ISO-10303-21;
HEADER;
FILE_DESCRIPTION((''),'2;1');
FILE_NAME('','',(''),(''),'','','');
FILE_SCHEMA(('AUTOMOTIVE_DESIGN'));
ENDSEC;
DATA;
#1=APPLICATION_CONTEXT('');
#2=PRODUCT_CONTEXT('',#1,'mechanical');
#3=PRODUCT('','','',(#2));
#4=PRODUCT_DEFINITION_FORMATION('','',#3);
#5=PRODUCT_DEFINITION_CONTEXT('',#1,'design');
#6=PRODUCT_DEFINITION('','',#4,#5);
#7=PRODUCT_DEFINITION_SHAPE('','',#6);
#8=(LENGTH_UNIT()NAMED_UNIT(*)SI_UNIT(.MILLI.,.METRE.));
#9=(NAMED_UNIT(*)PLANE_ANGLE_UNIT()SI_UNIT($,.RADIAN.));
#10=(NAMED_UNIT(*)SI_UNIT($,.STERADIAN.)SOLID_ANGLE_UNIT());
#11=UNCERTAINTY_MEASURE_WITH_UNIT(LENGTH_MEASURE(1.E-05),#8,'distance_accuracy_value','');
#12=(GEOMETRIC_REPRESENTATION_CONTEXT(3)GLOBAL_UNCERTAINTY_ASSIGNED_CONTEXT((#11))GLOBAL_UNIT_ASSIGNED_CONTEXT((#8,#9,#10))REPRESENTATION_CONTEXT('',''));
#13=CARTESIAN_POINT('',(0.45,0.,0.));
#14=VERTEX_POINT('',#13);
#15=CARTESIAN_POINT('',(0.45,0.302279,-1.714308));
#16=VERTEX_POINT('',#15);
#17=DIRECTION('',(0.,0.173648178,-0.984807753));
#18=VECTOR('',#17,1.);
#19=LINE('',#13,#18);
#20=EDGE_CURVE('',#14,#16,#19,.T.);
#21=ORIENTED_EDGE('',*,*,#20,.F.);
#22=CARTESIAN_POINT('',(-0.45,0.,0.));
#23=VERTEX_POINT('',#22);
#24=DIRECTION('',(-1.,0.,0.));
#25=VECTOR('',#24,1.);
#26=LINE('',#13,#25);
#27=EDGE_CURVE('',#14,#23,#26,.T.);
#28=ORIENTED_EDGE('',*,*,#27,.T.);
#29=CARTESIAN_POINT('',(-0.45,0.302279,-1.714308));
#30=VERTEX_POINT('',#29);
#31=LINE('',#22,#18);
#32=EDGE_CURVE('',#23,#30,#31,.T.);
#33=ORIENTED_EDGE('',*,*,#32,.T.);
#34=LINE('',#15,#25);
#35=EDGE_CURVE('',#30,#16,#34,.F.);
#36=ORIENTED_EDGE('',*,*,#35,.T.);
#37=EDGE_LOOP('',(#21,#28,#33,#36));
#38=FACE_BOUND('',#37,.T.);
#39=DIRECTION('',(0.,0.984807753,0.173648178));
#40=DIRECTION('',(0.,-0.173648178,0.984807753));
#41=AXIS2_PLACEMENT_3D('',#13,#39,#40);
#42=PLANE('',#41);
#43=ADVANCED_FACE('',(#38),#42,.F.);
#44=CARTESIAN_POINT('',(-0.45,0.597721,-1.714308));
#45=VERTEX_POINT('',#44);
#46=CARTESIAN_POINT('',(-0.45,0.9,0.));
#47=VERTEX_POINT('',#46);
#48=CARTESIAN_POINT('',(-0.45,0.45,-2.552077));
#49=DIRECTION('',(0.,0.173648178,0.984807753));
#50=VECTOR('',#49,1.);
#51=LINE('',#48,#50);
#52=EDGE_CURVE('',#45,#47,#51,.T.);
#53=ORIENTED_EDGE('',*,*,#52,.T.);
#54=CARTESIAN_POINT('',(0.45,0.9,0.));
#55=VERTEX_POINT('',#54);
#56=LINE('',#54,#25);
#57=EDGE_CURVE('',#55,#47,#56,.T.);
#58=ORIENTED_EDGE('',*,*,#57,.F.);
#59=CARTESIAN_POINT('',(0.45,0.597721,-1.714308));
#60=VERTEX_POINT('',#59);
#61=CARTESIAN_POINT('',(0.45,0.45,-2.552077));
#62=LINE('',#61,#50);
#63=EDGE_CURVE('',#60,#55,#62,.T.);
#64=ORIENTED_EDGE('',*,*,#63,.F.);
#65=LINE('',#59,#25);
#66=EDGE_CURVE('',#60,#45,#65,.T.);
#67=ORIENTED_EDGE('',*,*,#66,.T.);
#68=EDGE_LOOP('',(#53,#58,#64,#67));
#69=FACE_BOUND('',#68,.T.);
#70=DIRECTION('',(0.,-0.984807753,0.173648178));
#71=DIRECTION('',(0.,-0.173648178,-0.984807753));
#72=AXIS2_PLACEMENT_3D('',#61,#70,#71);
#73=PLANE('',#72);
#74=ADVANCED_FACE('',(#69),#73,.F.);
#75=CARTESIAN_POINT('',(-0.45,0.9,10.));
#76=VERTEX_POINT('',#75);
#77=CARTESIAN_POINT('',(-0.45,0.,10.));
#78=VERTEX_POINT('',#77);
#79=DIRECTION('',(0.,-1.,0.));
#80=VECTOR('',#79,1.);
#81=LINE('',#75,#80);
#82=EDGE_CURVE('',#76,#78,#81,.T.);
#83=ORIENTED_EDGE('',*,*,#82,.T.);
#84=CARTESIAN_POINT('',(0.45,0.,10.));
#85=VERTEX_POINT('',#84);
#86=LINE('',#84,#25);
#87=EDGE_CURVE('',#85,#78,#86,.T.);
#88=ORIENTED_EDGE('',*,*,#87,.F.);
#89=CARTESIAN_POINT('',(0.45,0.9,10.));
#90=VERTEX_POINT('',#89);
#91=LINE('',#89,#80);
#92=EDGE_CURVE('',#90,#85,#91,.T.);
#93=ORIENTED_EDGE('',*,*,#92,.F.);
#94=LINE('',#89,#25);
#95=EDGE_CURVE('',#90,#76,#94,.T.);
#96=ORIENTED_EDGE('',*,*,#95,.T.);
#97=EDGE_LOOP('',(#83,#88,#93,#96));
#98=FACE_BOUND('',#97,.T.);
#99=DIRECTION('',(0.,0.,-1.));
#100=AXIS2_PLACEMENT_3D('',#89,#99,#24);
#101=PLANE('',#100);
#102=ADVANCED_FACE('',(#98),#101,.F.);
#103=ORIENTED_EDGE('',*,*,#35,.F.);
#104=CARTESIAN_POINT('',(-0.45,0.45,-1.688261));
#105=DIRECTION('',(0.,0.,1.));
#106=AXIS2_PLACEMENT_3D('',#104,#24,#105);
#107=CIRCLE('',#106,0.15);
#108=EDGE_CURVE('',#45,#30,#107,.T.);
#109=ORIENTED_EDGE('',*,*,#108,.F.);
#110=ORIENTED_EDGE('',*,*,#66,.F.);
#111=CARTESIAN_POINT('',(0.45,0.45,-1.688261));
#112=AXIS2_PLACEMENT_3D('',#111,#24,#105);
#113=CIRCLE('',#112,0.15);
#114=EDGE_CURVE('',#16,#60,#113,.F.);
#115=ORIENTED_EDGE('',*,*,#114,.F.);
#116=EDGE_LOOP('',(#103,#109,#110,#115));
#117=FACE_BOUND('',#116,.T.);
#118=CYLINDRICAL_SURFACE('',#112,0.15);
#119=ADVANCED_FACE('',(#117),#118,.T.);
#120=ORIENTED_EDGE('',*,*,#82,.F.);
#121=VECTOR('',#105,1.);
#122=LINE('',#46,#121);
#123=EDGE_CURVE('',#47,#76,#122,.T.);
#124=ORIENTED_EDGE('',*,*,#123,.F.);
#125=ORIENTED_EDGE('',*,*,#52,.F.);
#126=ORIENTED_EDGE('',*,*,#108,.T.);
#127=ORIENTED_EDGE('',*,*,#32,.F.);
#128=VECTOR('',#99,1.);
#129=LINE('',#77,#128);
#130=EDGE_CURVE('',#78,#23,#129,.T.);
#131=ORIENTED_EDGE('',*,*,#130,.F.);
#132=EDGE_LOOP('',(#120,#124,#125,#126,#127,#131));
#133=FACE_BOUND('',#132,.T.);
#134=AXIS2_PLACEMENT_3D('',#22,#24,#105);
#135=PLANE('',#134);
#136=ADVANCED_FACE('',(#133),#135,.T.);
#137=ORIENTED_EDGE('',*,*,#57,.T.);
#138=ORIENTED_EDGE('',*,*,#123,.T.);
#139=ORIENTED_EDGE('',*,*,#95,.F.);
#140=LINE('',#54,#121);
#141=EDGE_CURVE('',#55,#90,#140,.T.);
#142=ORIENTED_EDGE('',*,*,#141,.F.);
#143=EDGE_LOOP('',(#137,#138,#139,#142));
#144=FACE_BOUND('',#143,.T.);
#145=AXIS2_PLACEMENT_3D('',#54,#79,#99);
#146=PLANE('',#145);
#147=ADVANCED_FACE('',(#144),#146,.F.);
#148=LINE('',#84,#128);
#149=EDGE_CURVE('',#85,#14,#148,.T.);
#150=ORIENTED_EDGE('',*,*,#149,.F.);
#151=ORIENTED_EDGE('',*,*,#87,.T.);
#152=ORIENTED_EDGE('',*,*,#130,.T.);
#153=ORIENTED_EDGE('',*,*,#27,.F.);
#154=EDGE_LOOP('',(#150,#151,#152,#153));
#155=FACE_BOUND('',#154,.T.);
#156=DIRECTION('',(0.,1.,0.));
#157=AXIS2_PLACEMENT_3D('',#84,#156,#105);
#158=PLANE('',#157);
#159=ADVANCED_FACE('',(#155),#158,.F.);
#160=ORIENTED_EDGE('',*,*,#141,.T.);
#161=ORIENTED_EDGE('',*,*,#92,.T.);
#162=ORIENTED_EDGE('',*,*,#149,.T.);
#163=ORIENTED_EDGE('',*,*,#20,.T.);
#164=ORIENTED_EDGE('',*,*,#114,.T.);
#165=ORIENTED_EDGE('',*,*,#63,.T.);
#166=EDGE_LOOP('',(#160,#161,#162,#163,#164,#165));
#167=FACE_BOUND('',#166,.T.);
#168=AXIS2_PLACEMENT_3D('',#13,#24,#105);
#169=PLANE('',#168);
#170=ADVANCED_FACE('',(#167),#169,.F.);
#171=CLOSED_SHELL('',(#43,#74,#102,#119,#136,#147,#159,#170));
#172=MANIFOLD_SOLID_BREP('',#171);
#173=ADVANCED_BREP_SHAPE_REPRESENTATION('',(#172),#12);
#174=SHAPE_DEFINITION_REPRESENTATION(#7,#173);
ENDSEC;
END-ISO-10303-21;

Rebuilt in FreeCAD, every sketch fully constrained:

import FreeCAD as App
import Part
import Sketcher
Q = App.Units.Quantity


def edges_at(feature, points):
    """Names of the edges that pass closest to the given points."""
    edges = feature.Shape.Edges
    near = lambda p: min(range(len(edges)), key=lambda i: edges[i].distToShape(Part.Vertex(*p))[0])
    return sorted({f"Edge{near(p) + 1}" for p in points})


def add_polygon(sketch, points):
    """Adds a closed chain of lines whose ends are joined by coincident constraints."""
    first, n = sketch.GeometryCount, len(points)
    for a, b in zip(points, points[1:] + points[:1]):
        sketch.addGeometry(Part.LineSegment(App.Vector(*a, 0), App.Vector(*b, 0)), False)
    for i in range(n):
        sketch.addConstraint(Sketcher.Constraint("Coincident", first + i, 2, first + (i + 1) % n, 1))

doc = App.newDocument("Part")
params = doc.addObject("Spreadsheet::Sheet", "Params")
for row, (alias, value) in enumerate([
    ("sketch1_height", "10 mm"),
    ("sketch1_width", "0.9 mm"),
    ("pad1_length", "0.9 mm"),
    ("fillet_radius", "0.15 mm"),
], start=1):
    params.set(f"A{row}", alias)
    params.set(f"B{row}", "=" + value)
    params.setAlias(f"B{row}", alias)

body = doc.addObject("PartDesign::Body", "Body")

# Sketch on YZ plane
sketch1 = doc.addObject("Sketcher::SketchObject", "Sketch")
body.addObject(sketch1)
sketch1.AttachmentSupport = (doc.YZ_Plane, [""])
sketch1.MapMode = "FlatFace"
add_polygon(sketch1, [(0, 0), (0.5, -2.6), (0.9, 0), (0.9, 10), (0, 10)])  # lines 0-4
sketch1.addConstraint(Sketcher.Constraint("Vertical", 2))
sketch1.addConstraint(Sketcher.Constraint("Horizontal", 3))
sketch1.addConstraint(Sketcher.Constraint("Vertical", 4))
sketch1.addConstraint(Sketcher.Constraint("Coincident", 4, 2, -1, 1))
sketch1.addConstraint(Sketcher.Constraint("PointOnObject", 1, 2, -1))
sketch1.addConstraint(Sketcher.Constraint("Equal", 0, 1))
sketch1.addConstraint(Sketcher.Constraint("DistanceY", 2, 1, 2, 2, 10.0))
sketch1.addConstraint(Sketcher.Constraint("Angle", 0, Q("-80 deg")))
sketch1.addConstraint(Sketcher.Constraint("DistanceX", 3, 2, 3, 1, 0.9))
sketch1.setExpression("Constraints[11]", "Params.sketch1_height")
sketch1.setExpression("Constraints[13]", "Params.sketch1_width")
pad1 = doc.addObject("PartDesign::Pad", "Pad")
body.addObject(pad1)
pad1.Profile = sketch1
pad1.setExpression("Length", "Params.pad1_length")
pad1.Midplane = True
doc.recompute()

fillet = doc.addObject("PartDesign::Fillet", "Fillet")
body.addObject(fillet)
fillet.Base = (pad1, edges_at(pad1, [(0, 0.45, -2.552)]))
fillet.setExpression("Radius", "Params.fillet_radius")

doc.recompute()
